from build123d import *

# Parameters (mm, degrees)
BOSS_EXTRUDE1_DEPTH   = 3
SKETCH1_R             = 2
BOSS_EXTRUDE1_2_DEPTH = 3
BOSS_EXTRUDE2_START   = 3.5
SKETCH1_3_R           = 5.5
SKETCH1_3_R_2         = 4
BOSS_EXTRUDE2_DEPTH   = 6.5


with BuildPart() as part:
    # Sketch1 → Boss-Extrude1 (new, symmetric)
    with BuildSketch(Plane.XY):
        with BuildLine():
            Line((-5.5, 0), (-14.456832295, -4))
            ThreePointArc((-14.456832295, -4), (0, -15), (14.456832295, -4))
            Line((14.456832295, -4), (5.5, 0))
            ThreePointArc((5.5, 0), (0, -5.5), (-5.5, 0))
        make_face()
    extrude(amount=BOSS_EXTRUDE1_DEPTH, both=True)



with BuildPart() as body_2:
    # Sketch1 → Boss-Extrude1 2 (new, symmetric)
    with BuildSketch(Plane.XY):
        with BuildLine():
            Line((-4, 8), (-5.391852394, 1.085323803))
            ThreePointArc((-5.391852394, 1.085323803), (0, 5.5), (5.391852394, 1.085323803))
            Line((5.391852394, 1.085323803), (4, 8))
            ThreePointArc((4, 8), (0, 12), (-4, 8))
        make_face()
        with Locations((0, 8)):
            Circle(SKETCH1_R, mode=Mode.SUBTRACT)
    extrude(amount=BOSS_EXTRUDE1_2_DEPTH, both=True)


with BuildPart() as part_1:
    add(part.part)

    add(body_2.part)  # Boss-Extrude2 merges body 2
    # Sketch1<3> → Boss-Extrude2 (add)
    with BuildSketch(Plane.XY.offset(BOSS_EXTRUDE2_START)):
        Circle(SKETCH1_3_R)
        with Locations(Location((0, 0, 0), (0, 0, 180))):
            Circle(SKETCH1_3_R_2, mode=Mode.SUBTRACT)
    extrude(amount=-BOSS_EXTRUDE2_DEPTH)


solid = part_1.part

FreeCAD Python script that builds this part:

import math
import FreeCAD as App
import Part
import Sketcher

doc = App.newDocument("Part")
body = doc.addObject("PartDesign::Body", "Body")

# Sketch on XY plane
sketch1 = body.newObject("Sketcher::SketchObject", "Sketch")
sketch1.AttachmentSupport = (doc.getObject("XY_Plane"), [""])
sketch1.MapMode = "FlatFace"
sketch1.addGeometry(Part.LineSegment(App.Vector(-6, 0, 0), App.Vector(-14, -4, 0)), False)
sketch1.addGeometry(Part.ArcOfCircle(Part.Circle(App.Vector(0, 0, 0), App.Vector(0, 0, 1), 15), math.radians(-165), math.radians(-15)), False)
sketch1.addGeometry(Part.LineSegment(App.Vector(14, -4, 0), App.Vector(6, 0, 0)), False)
sketch1.addGeometry(Part.ArcOfCircle(Part.Circle(App.Vector(0, 0, 0), App.Vector(0, 0, 1), 6), math.radians(180), math.radians(360)), False)
sketch1.addConstraint(Sketcher.Constraint("Coincident", 0, 2, 1, 1))
sketch1.addConstraint(Sketcher.Constraint("Coincident", 1, 2, 2, 1))
sketch1.addConstraint(Sketcher.Constraint("Coincident", 2, 2, 3, 2))
sketch1.addConstraint(Sketcher.Constraint("Coincident", 3, 1, 0, 1))
sketch1.addConstraint(Sketcher.Constraint("Coincident", 1, 3, -1, 1))
sketch1.addConstraint(Sketcher.Constraint("Coincident", 3, 3, -1, 1))
sketch1.addConstraint(Sketcher.Constraint("PointOnObject", 2, 2, -1))
sketch1.addConstraint(Sketcher.Constraint("PointOnObject", 3, 1, -1))
sketch1.addConstraint(Sketcher.Constraint("Horizontal", 0, 2, 1, 2))
sketch1.addConstraint(Sketcher.Constraint("Radius", 1, 15.0))
sketch1.addConstraint(Sketcher.Constraint("Radius", 3, 5.5))
sketch1.addConstraint(Sketcher.Constraint("DistanceY", 0, 2, -1, 1, 4.0))
pad1 = body.newObject("PartDesign::Pad", "Pad")
pad1.Profile = sketch1
pad1.Length = 6
pad1.Midplane = True
body2 = doc.addObject("PartDesign::Body", "Body001")

# Sketch on XY plane
sketch2 = body2.newObject("Sketcher::SketchObject", "Sketch001")
sketch2.AttachmentSupport = (doc.getObject("XY_Plane001"), [""])
sketch2.MapMode = "FlatFace"
sketch2.addGeometry(Part.LineSegment(App.Vector(-4, 8, 0), App.Vector(-5.4, 1.1, 0)), False)
sketch2.addGeometry(Part.ArcOfCircle(Part.Circle(App.Vector(0, 0, 0), App.Vector(0, 0, 1), 5.5), math.radians(11), math.radians(169)), False)
sketch2.addGeometry(Part.LineSegment(App.Vector(5.4, 1.1, 0), App.Vector(4, 8, 0)), False)
sketch2.addGeometry(Part.ArcOfCircle(Part.Circle(App.Vector(0, 8, 0), App.Vector(0, 0, 1), 4), math.radians(0), math.radians(180)), False)
sketch2.addGeometry(Part.Circle(App.Vector(0, 8, 0), App.Vector(0, 0, 1), 2), False)
sketch2.addConstraint(Sketcher.Constraint("Tangent", 0, 2, 1, 2))
sketch2.addConstraint(Sketcher.Constraint("Tangent", 1, 1, 2, 1))
sketch2.addConstraint(Sketcher.Constraint("Coincident", 2, 2, 3, 1))
sketch2.addConstraint(Sketcher.Constraint("Coincident", 3, 2, 0, 1))
sketch2.addConstraint(Sketcher.Constraint("Coincident", 1, 3, -1, 1))
sketch2.addConstraint(Sketcher.Constraint("Coincident", 4, 3, 3, 3))
sketch2.addConstraint(Sketcher.Constraint("Symmetric", 2, 2, 3, 2, -2))
sketch2.addConstraint(Sketcher.Constraint("Horizontal", 4, 3, 2, 2))
sketch2.addConstraint(Sketcher.Constraint("Diameter", 4, 4.0))
sketch2.addConstraint(Sketcher.Constraint("Radius", 3, 4.0))
sketch2.addConstraint(Sketcher.Constraint("Radius", 1, 5.5))
sketch2.addConstraint(Sketcher.Constraint("DistanceY", -1, 1, 3, 3, 8.0))
pad2 = body2.newObject("PartDesign::Pad", "Pad001")
pad2.Profile = sketch2
pad2.Length = 6
pad2.Midplane = True
body.AllowCompound = True
doc.recompute()

boolean = body.newObject("PartDesign::Boolean", "Boolean")
boolean.Type = "Fuse"
boolean.addObjects([body2])

# Sketch on XY plane
sketch3 = body.newObject("Sketcher::SketchObject", "Sketch002")
sketch3.AttachmentSupport = (doc.getObject("XY_Plane"), [""])
sketch3.MapMode = "FlatFace"
sketch3.AttachmentOffset = App.Placement(App.Vector(0, 0, 3.5), App.Rotation())
sketch3.addGeometry(Part.Circle(App.Vector(0, 0, 0), App.Vector(0, 0, 1), 5.5), False)
sketch3.addGeometry(Part.Circle(App.Vector(0, 0, 0), App.Vector(0, 0, 1), 4), False)
sketch3.addConstraint(Sketcher.Constraint("Coincident", 0, 3, -1, 1))
sketch3.addConstraint(Sketcher.Constraint("Coincident", 1, 3, -1, 1))
sketch3.addConstraint(Sketcher.Constraint("Diameter", 0, 11.0))
sketch3.addConstraint(Sketcher.Constraint("Diameter", 1, 8.0))
pad3 = body.newObject("PartDesign::Pad", "Pad002")
pad3.Profile = sketch3
pad3.Length = 6.5
pad3.Reversed = True

doc.recompute()
